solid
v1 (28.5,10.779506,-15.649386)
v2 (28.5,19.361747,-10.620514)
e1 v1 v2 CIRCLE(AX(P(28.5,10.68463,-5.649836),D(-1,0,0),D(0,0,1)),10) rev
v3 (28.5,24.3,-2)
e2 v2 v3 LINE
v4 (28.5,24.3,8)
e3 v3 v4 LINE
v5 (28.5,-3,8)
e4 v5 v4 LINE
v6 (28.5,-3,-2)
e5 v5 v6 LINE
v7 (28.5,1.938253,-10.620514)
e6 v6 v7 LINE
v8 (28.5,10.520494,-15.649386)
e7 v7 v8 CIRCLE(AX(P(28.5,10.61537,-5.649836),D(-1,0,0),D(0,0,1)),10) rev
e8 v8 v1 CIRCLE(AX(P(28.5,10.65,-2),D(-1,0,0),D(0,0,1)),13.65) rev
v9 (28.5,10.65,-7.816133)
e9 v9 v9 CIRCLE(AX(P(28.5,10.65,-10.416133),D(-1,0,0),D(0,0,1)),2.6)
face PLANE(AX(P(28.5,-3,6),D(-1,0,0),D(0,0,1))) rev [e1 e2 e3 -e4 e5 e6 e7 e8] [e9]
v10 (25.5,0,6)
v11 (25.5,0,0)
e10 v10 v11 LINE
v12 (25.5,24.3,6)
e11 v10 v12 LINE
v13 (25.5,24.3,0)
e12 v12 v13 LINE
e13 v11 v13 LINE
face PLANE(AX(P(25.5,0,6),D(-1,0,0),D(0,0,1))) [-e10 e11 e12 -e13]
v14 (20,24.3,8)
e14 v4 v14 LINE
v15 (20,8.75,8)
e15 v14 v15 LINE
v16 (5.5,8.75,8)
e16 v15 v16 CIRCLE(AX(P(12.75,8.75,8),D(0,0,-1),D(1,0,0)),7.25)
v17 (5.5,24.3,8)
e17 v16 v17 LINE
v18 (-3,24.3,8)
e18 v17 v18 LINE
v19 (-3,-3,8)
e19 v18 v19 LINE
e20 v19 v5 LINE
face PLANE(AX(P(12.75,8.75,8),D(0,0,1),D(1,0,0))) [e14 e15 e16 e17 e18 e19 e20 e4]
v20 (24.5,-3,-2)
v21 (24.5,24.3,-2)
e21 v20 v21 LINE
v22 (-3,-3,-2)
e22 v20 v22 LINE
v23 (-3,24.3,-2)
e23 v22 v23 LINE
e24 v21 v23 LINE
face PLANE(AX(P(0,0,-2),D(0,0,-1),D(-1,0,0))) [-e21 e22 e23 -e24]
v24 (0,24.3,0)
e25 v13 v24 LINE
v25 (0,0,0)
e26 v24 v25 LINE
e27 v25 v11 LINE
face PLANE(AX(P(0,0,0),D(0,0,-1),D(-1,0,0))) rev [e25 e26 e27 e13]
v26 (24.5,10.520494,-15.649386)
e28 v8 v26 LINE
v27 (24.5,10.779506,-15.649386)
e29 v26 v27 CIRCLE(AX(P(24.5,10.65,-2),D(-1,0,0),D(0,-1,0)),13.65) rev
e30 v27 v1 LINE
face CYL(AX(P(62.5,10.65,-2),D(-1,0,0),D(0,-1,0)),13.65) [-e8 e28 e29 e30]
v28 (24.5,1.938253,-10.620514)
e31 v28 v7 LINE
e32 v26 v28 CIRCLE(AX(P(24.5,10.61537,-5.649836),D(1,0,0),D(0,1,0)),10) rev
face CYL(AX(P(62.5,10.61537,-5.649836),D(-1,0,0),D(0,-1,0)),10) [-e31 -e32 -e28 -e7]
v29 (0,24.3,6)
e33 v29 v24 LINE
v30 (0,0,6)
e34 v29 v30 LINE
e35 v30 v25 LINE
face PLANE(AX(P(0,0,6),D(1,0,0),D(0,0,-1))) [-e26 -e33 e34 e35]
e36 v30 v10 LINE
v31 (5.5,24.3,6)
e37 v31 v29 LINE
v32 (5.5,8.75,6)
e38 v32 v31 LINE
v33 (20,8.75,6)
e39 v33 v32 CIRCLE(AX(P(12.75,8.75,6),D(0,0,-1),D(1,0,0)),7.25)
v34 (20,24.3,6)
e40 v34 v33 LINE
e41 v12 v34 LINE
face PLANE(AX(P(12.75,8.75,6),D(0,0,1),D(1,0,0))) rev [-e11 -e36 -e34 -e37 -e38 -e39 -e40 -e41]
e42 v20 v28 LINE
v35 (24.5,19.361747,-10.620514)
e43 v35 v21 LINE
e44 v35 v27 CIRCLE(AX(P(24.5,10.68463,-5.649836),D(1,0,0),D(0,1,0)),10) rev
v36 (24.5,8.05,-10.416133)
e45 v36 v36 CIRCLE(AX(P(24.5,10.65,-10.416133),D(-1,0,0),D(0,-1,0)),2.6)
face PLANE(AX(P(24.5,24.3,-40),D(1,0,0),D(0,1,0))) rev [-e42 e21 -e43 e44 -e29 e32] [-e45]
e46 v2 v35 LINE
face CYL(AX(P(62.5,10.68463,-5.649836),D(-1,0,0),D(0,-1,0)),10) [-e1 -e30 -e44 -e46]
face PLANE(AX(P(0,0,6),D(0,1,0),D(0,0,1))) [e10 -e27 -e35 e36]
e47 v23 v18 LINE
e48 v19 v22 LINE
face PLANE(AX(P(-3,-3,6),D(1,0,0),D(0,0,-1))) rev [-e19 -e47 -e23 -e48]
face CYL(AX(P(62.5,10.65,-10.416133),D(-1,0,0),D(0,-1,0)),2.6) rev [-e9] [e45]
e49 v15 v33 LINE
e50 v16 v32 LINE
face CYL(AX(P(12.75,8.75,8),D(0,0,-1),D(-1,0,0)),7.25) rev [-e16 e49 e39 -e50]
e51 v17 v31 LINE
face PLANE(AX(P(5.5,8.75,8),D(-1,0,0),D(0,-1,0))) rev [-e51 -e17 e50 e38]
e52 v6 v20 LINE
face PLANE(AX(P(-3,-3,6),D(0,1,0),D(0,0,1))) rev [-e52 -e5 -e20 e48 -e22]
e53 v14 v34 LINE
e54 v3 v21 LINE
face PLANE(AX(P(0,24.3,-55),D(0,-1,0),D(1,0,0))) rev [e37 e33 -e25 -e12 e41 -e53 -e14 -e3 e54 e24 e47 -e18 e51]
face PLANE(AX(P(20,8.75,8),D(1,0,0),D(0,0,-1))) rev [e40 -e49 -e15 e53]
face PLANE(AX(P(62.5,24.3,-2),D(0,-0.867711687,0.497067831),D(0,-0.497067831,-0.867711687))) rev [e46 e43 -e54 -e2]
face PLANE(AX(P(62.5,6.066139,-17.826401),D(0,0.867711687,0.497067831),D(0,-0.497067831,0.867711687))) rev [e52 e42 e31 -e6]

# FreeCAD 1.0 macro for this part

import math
import FreeCAD as App
import Part
import Sketcher

V = App.Vector


def edges_at(feature, points):
    """Names of the edges that pass closest to the given points."""
    edges = feature.Shape.Edges
    near = lambda p: min(range(len(edges)), key=lambda i: edges[i].distToShape(Part.Vertex(*p))[0])
    return sorted({f"Edge{near(p) + 1}" for p in points})


def add_polygon(sketch, points):
    """Adds a closed chain of lines whose ends are joined by coincident constraints."""
    first, n = sketch.GeometryCount, len(points)
    for a, b in zip(points, points[1:] + points[:1]):
        sketch.addGeometry(Part.LineSegment(App.Vector(*a, 0), App.Vector(*b, 0)), False)
    for i in range(n):
        sketch.addConstraint(Sketcher.Constraint("Coincident", first + i, 2, first + (i + 1) % n, 1))

doc = App.newDocument("Part")
body = doc.addObject("PartDesign::Body", "Body")

sketch1 = doc.addObject("Sketcher::SketchObject", "Sketch")
body.addObject(sketch1)
sketch1.AttachmentSupport = (doc.XY_Plane, [""])
sketch1.MapMode = "FlatFace"
add_polygon(sketch1, [(-3, 27), (-3, -3), (28, -3), (28, 27)])
add_polygon(sketch1, [(26, 0), (0, 0), (0, 24), (26, 24)])
sketch1.addConstraint(Sketcher.Constraint("Vertical", 0))
sketch1.addConstraint(Sketcher.Constraint("Horizontal", 1))
sketch1.addConstraint(Sketcher.Constraint("Vertical", 2))
sketch1.addConstraint(Sketcher.Constraint("Horizontal", 3))
sketch1.addConstraint(Sketcher.Constraint("Horizontal", 4))
sketch1.addConstraint(Sketcher.Constraint("Vertical", 5))
sketch1.addConstraint(Sketcher.Constraint("Horizontal", 6))
sketch1.addConstraint(Sketcher.Constraint("Vertical", 7))
sketch1.addConstraint(Sketcher.Constraint("Coincident", 4, 2, -1, 1))
sketch1.addConstraint(Sketcher.Constraint("DistanceX", 1, 1, 1, 2, 31.5))
sketch1.addConstraint(Sketcher.Constraint("DistanceX", 4, 2, 4, 1, 25.5))
sketch1.addConstraint(Sketcher.Constraint("DistanceY", 0, 2, 0, 1, 30.3))
sketch1.addConstraint(Sketcher.Constraint("DistanceY", 5, 1, 5, 2, 24.3))
sketch1.addConstraint(Sketcher.Constraint("DistanceX", 0, 2, -1, 1, 3.0))
sketch1.addConstraint(Sketcher.Constraint("DistanceY", 0, 2, -1, 1, 3.0))
pad1 = doc.addObject("PartDesign::Pad", "Pad")
body.addObject(pad1)
pad1.Profile = sketch1
pad1.Length = 6

sketch2 = doc.addObject("Sketcher::SketchObject", "Sketch001")
body.addObject(sketch2)
sketch2.AttachmentSupport = (doc.XY_Plane, [""])
sketch2.MapMode = "FlatFace"
add_polygon(sketch2, [(28, 27), (28, -3), (-3, -3), (-3, 27)])
sketch2.addConstraint(Sketcher.Constraint("Vertical", 0))
sketch2.addConstraint(Sketcher.Constraint("Horizontal", 1))
sketch2.addConstraint(Sketcher.Constraint("Vertical", 2))
sketch2.addConstraint(Sketcher.Constraint("Horizontal", 3))
sketch2.addConstraint(Sketcher.Constraint("DistanceX", 1, 2, 1, 1, 31.5))
sketch2.addConstraint(Sketcher.Constraint("DistanceY", 0, 2, 0, 1, 30.3))
sketch2.addConstraint(Sketcher.Constraint("DistanceY", 0, 2, -1, 1, 3.0))
sketch2.addConstraint(Sketcher.Constraint("DistanceX", 1, 2, -1, 1, 3.0))
pad2 = doc.addObject("PartDesign::Pad", "Pad001")
body.addObject(pad2)
pad2.Profile = sketch2
pad2.Length = 2
pad2.Reversed = True

sketch3 = doc.addObject("Sketcher::SketchObject", "Sketch002")
body.addObject(sketch3)
sketch3.AttachmentSupport = (doc.XY_Plane, [""])
sketch3.MapMode = "FlatFace"
sketch3.AttachmentOffset = App.Placement(V(0, 0, 6), App.Rotation())
add_polygon(sketch3, [(-3, 27.3), (-3, 24.3), (28.5, 24.3), (28.5, 27.3)])
sketch3.addConstraint(Sketcher.Constraint("Vertical", 0))
sketch3.addConstraint(Sketcher.Constraint("Horizontal", 1))
sketch3.addConstraint(Sketcher.Constraint("Vertical", 2))
sketch3.addConstraint(Sketcher.Constraint("Horizontal", 3))
sketch3.addConstraint(Sketcher.Constraint("DistanceY", 0, 2, 0, 1, 3.0))
sketch3.addConstraint(Sketcher.Constraint("DistanceX", 1, 1, 1, 2, 31.5))
sketch3.addConstraint(Sketcher.Constraint("DistanceX", 0, 2, -1, 1, 3.0))
sketch3.addConstraint(Sketcher.Constraint("DistanceY", -1, 1, 0, 2, 24.3))
pocket1 = doc.addObject("PartDesign::Pocket", "Pocket")
body.addObject(pocket1)
pocket1.Profile = sketch3
pocket1.Length = 61

sketch4 = doc.addObject("Sketcher::SketchObject", "Sketch003")
body.addObject(sketch4)
sketch4.AttachmentSupport = (doc.XY_Plane, [""])
sketch4.MapMode = "FlatFace"
sketch4.AttachmentOffset = App.Placement(V(0, 0, 6), App.Rotation())
sketch4.addGeometry(Part.LineSegment(V(6, 24, 0), V(-3, 24, 0)), False)
sketch4.addGeometry(Part.LineSegment(V(-3, 24, 0), V(-3, -3, 0)), False)
sketch4.addGeometry(Part.LineSegment(V(-3, -3, 0), V(28, -3, 0)), False)
sketch4.addGeometry(Part.LineSegment(V(28, -3, 0), V(28, 24, 0)), False)
sketch4.addGeometry(Part.LineSegment(V(28, 24, 0), V(20, 24, 0)), False)
sketch4.addGeometry(Part.LineSegment(V(20, 24, 0), V(20, 9, 0)), False)
sketch4.addGeometry(Part.ArcOfCircle(Part.Circle(V(13, 9, 0), V(0, 0, 1), 7), math.radians(180), math.radians(360)), False)
sketch4.addGeometry(Part.LineSegment(V(6, 9, 0), V(6, 24, 0)), False)
sketch4.addConstraint(Sketcher.Constraint("Coincident", 0, 2, 1, 1))
sketch4.addConstraint(Sketcher.Constraint("Coincident", 1, 2, 2, 1))
sketch4.addConstraint(Sketcher.Constraint("Coincident", 2, 2, 3, 1))
sketch4.addConstraint(Sketcher.Constraint("Coincident", 3, 2, 4, 1))
sketch4.addConstraint(Sketcher.Constraint("Coincident", 4, 2, 5, 1))
sketch4.addConstraint(Sketcher.Constraint("Tangent", 5, 2, 6, 2))
sketch4.addConstraint(Sketcher.Constraint("Tangent", 6, 1, 7, 1))
sketch4.addConstraint(Sketcher.Constraint("Coincident", 7, 2, 0, 1))
sketch4.addConstraint(Sketcher.Constraint("Horizontal", 0))
sketch4.addConstraint(Sketcher.Constraint("Vertical", 1))
sketch4.addConstraint(Sketcher.Constraint("Horizontal", 2))
sketch4.addConstraint(Sketcher.Constraint("Vertical", 3))
sketch4.addConstraint(Sketcher.Constraint("Horizontal", 4))
sketch4.addConstraint(Sketcher.Constraint("Vertical", 5))
sketch4.addConstraint(Sketcher.Constraint("Vertical", 7))
sketch4.addConstraint(Sketcher.Constraint("Horizontal", 0, 2, 3, 2))
sketch4.addConstraint(Sketcher.Constraint("Equal", 0, 4))
sketch4.addConstraint(Sketcher.Constraint("Radius", 6, 7.25))
sketch4.addConstraint(Sketcher.Constraint("DistanceX", 0, 2, 0, 1, 8.5))
sketch4.addConstraint(Sketcher.Constraint("DistanceY", 1, 2, 1, 1, 27.3))
sketch4.addConstraint(Sketcher.Constraint("DistanceX", 0, 2, -1, 1, 3.0))
sketch4.addConstraint(Sketcher.Constraint("DistanceY", 1, 2, -1, 1, 3.0))
sketch4.addConstraint(Sketcher.Constraint("DistanceY", 5, 2, 5, 1, 15.55))
pad3 = doc.addObject("PartDesign::Pad", "Pad002")
body.addObject(pad3)
pad3.Profile = sketch4
pad3.Length = 2

sketch5 = doc.addObject("Sketcher::SketchObject", "Sketch004")
body.addObject(sketch5)
sketch5.AttachmentSupport = (doc.XY_Plane, [""])
sketch5.MapMode = "FlatFace"
sketch5.AttachmentOffset = App.Placement(V(0, 0, -2), App.Rotation())
add_polygon(sketch5, [(28.5, 24.3), (28.5, -3), (24.5, -3), (24.5, 24.3)])
sketch5.addConstraint(Sketcher.Constraint("Vertical", 0))
sketch5.addConstraint(Sketcher.Constraint("Horizontal", 1))
sketch5.addConstraint(Sketcher.Constraint("Vertical", 2))
sketch5.addConstraint(Sketcher.Constraint("Horizontal", 3))
sketch5.addConstraint(Sketcher.Constraint("DistanceX", 1, 2, 1, 1, 4.0))
sketch5.addConstraint(Sketcher.Constraint("DistanceY", 0, 2, 0, 1, 27.3))
sketch5.addConstraint(Sketcher.Constraint("DistanceY", 0, 2, -1, 1, 3.0))
sketch5.addConstraint(Sketcher.Constraint("DistanceX", -1, 1, 0, 2, 28.5))
pad4 = doc.addObject("PartDesign::Pad", "Pad003")
body.addObject(pad4)
pad4.Profile = sketch5
pad4.Length = 38
pad4.Reversed = True

sketch6 = doc.addObject("Sketcher::SketchObject", "Sketch005")
body.addObject(sketch6)
sketch6.AttachmentSupport = (doc.YZ_Plane, [""])
sketch6.MapMode = "FlatFace"
sketch6.AttachmentOffset = App.Placement(V(0, 0, 24.5), App.Rotation())
sketch6.addGeometry(Part.LineSegment(V(-3, -40, 0), V(-3, -2, 0)), False)
sketch6.addGeometry(Part.LineSegment(V(-3, -2, 0), V(6.1, -17.8, 0)), False)
sketch6.addGeometry(Part.ArcOfCircle(Part.Circle(V(7.8, -16.8, 0), V(0, 0, 1), 2), math.radians(-150), math.radians(-90)), False)
sketch6.addGeometry(Part.LineSegment(V(7.8, -18.8, 0), V(13.5, -18.8, 0)), False)
sketch6.addGeometry(Part.ArcOfCircle(Part.Circle(V(13.5, -16.8, 0), V(0, 0, 1), 2), math.radians(-90), math.radians(-30)), False)
sketch6.addGeometry(Part.LineSegment(V(15.2, -17.8, 0), V(24.3, -2, 0)), False)
sketch6.addGeometry(Part.LineSegment(V(24.3, -2, 0), V(24.3, -40, 0)), False)
sketch6.addGeometry(Part.LineSegment(V(24.3, -40, 0), V(-3, -40, 0)), False)
sketch6.addConstraint(Sketcher.Constraint("Coincident", 0, 2, 1, 1))
sketch6.addConstraint(Sketcher.Constraint("Tangent", 1, 2, 2, 1))
sketch6.addConstraint(Sketcher.Constraint("Tangent", 2, 2, 3, 1))
sketch6.addConstraint(Sketcher.Constraint("Tangent", 3, 2, 4, 1))
sketch6.addConstraint(Sketcher.Constraint("Tangent", 4, 2, 5, 1))
sketch6.addConstraint(Sketcher.Constraint("Coincident", 5, 2, 6, 1))
sketch6.addConstraint(Sketcher.Constraint("Coincident", 6, 2, 7, 1))
sketch6.addConstraint(Sketcher.Constraint("Coincident", 7, 2, 0, 1))
sketch6.addConstraint(Sketcher.Constraint("Vertical", 0))
sketch6.addConstraint(Sketcher.Constraint("Horizontal", 3))
sketch6.addConstraint(Sketcher.Constraint("Vertical", 6))
sketch6.addConstraint(Sketcher.Constraint("Horizontal", 7))
sketch6.addConstraint(Sketcher.Constraint("Equal", 2, 4))
sketch6.addConstraint(Sketcher.Constraint("Horizontal", 1, 2, 4, 2))
sketch6.addConstraint(Sketcher.Constraint("Horizontal", 0, 2, 5, 2))
sketch6.addConstraint(Sketcher.Constraint("Radius", 2, 2.0))
sketch6.addConstraint(Sketcher.Constraint("DistanceY", 0, 1, 0, 2, 38.0))
sketch6.addConstraint(Sketcher.Constraint("DistanceX", 7, 2, 7, 1, 27.3))
sketch6.addConstraint(Sketcher.Constraint("DistanceX", 0, 2, -1, 1, 3.0))
sketch6.addConstraint(Sketcher.Constraint("DistanceY", 0, 2, -1, 1, 2.0))
sketch6.addConstraint(Sketcher.Constraint("DistanceY", 1, 2, -1, 1, 17.826401))
sketch6.addConstraint(Sketcher.Constraint("Distance", 1, 18.23924))
pocket2 = doc.addObject("PartDesign::Pocket", "Pocket001")
body.addObject(pocket2)
pocket2.Profile = sketch6
pocket2.Length = 38
pocket2.Reversed = True

sketch7 = doc.addObject("Sketcher::SketchObject", "Sketch006")
body.addObject(sketch7)
sketch7.AttachmentSupport = (doc.YZ_Plane, [""])
sketch7.MapMode = "FlatFace"
sketch7.AttachmentOffset = App.Placement(V(0, 0, 24.5), App.Rotation())
sketch7.addGeometry(Part.Circle(V(10.7, -10.4, 0), V(0, 0, 1), 2.6), False)
sketch7.addConstraint(Sketcher.Constraint("Diameter", 0, 5.2))
sketch7.addConstraint(Sketcher.Constraint("DistanceX", -1, 1, 0, 3, 10.65))
sketch7.addConstraint(Sketcher.Constraint("DistanceY", 0, 3, -1, 1, 10.416133))
pocket3 = doc.addObject("PartDesign::Pocket", "Pocket002")
body.addObject(pocket3)
pocket3.Profile = sketch7
pocket3.Length = 38
pocket3.Reversed = True

sketch8 = doc.addObject("Sketcher::SketchObject", "Sketch007")
body.addObject(sketch8)
sketch8.AttachmentSupport = (doc.YZ_Plane, [""])
sketch8.MapMode = "FlatFace"
sketch8.AttachmentOffset = App.Placement(V(0, 0, 24.5), App.Rotation())
sketch8.addGeometry(Part.ArcOfCircle(Part.Circle(V(11, -2, 0), V(0, 0, 1), 14), math.radians(-137), math.radians(-19)), False)
sketch8.addGeometry(Part.LineSegment(V(24, -7, 0), V(18, -21, 0)), False)
sketch8.addGeometry(Part.LineSegment(V(18, -21, 0), V(1, -21, 0)), False)
sketch8.addGeometry(Part.LineSegment(V(1, -21, 0), V(1, -11, 0)), False)
sketch8.addConstraint(Sketcher.Constraint("Tangent", 0, 2, 1, 1))
sketch8.addConstraint(Sketcher.Constraint("Coincident", 1, 2, 2, 1))
sketch8.addConstraint(Sketcher.Constraint("Coincident", 2, 2, 3, 1))
sketch8.addConstraint(Sketcher.Constraint("Coincident", 3, 2, 0, 1))
sketch8.addConstraint(Sketcher.Constraint("Radius", 0, 13.65))
sketch8.addConstraint(Sketcher.Constraint("DistanceY", 0, 3, -1, 1, 2.0))
sketch8.addConstraint(Sketcher.Constraint("DistanceX", -1, 1, 0, 3, 10.65))
sketch8.addConstraint(Sketcher.Constraint("Distance", 3, 9.420331))
sketch8.addConstraint(Sketcher.Constraint("DistanceX", -1, 1, 0, 2, 23.525791))
sketch8.addConstraint(Sketcher.Constraint("DistanceX", -1, 1, 1, 2, 18.385252))
sketch8.addConstraint(Sketcher.Constraint("DistanceY", 2, 2, -1, 1, 20.671768))
sketch8.addConstraint(Sketcher.Constraint("DistanceX", -1, 1, 3, 2, 0.61452))
pocket4 = doc.addObject("PartDesign::Pocket", "Pocket003")
body.addObject(pocket4)
pocket4.Profile = sketch8
pocket4.Length = 38
pocket4.Reversed = True
doc.recompute()

fillet = doc.addObject("PartDesign::Fillet", "Fillet")
body.addObject(fillet)
fillet.Base = (pocket4, edges_at(pocket4, [(26.5, 3.745, -13.775), (26.5, 17.555, -13.775)]))
fillet.Radius = 10

doc.recompute()
